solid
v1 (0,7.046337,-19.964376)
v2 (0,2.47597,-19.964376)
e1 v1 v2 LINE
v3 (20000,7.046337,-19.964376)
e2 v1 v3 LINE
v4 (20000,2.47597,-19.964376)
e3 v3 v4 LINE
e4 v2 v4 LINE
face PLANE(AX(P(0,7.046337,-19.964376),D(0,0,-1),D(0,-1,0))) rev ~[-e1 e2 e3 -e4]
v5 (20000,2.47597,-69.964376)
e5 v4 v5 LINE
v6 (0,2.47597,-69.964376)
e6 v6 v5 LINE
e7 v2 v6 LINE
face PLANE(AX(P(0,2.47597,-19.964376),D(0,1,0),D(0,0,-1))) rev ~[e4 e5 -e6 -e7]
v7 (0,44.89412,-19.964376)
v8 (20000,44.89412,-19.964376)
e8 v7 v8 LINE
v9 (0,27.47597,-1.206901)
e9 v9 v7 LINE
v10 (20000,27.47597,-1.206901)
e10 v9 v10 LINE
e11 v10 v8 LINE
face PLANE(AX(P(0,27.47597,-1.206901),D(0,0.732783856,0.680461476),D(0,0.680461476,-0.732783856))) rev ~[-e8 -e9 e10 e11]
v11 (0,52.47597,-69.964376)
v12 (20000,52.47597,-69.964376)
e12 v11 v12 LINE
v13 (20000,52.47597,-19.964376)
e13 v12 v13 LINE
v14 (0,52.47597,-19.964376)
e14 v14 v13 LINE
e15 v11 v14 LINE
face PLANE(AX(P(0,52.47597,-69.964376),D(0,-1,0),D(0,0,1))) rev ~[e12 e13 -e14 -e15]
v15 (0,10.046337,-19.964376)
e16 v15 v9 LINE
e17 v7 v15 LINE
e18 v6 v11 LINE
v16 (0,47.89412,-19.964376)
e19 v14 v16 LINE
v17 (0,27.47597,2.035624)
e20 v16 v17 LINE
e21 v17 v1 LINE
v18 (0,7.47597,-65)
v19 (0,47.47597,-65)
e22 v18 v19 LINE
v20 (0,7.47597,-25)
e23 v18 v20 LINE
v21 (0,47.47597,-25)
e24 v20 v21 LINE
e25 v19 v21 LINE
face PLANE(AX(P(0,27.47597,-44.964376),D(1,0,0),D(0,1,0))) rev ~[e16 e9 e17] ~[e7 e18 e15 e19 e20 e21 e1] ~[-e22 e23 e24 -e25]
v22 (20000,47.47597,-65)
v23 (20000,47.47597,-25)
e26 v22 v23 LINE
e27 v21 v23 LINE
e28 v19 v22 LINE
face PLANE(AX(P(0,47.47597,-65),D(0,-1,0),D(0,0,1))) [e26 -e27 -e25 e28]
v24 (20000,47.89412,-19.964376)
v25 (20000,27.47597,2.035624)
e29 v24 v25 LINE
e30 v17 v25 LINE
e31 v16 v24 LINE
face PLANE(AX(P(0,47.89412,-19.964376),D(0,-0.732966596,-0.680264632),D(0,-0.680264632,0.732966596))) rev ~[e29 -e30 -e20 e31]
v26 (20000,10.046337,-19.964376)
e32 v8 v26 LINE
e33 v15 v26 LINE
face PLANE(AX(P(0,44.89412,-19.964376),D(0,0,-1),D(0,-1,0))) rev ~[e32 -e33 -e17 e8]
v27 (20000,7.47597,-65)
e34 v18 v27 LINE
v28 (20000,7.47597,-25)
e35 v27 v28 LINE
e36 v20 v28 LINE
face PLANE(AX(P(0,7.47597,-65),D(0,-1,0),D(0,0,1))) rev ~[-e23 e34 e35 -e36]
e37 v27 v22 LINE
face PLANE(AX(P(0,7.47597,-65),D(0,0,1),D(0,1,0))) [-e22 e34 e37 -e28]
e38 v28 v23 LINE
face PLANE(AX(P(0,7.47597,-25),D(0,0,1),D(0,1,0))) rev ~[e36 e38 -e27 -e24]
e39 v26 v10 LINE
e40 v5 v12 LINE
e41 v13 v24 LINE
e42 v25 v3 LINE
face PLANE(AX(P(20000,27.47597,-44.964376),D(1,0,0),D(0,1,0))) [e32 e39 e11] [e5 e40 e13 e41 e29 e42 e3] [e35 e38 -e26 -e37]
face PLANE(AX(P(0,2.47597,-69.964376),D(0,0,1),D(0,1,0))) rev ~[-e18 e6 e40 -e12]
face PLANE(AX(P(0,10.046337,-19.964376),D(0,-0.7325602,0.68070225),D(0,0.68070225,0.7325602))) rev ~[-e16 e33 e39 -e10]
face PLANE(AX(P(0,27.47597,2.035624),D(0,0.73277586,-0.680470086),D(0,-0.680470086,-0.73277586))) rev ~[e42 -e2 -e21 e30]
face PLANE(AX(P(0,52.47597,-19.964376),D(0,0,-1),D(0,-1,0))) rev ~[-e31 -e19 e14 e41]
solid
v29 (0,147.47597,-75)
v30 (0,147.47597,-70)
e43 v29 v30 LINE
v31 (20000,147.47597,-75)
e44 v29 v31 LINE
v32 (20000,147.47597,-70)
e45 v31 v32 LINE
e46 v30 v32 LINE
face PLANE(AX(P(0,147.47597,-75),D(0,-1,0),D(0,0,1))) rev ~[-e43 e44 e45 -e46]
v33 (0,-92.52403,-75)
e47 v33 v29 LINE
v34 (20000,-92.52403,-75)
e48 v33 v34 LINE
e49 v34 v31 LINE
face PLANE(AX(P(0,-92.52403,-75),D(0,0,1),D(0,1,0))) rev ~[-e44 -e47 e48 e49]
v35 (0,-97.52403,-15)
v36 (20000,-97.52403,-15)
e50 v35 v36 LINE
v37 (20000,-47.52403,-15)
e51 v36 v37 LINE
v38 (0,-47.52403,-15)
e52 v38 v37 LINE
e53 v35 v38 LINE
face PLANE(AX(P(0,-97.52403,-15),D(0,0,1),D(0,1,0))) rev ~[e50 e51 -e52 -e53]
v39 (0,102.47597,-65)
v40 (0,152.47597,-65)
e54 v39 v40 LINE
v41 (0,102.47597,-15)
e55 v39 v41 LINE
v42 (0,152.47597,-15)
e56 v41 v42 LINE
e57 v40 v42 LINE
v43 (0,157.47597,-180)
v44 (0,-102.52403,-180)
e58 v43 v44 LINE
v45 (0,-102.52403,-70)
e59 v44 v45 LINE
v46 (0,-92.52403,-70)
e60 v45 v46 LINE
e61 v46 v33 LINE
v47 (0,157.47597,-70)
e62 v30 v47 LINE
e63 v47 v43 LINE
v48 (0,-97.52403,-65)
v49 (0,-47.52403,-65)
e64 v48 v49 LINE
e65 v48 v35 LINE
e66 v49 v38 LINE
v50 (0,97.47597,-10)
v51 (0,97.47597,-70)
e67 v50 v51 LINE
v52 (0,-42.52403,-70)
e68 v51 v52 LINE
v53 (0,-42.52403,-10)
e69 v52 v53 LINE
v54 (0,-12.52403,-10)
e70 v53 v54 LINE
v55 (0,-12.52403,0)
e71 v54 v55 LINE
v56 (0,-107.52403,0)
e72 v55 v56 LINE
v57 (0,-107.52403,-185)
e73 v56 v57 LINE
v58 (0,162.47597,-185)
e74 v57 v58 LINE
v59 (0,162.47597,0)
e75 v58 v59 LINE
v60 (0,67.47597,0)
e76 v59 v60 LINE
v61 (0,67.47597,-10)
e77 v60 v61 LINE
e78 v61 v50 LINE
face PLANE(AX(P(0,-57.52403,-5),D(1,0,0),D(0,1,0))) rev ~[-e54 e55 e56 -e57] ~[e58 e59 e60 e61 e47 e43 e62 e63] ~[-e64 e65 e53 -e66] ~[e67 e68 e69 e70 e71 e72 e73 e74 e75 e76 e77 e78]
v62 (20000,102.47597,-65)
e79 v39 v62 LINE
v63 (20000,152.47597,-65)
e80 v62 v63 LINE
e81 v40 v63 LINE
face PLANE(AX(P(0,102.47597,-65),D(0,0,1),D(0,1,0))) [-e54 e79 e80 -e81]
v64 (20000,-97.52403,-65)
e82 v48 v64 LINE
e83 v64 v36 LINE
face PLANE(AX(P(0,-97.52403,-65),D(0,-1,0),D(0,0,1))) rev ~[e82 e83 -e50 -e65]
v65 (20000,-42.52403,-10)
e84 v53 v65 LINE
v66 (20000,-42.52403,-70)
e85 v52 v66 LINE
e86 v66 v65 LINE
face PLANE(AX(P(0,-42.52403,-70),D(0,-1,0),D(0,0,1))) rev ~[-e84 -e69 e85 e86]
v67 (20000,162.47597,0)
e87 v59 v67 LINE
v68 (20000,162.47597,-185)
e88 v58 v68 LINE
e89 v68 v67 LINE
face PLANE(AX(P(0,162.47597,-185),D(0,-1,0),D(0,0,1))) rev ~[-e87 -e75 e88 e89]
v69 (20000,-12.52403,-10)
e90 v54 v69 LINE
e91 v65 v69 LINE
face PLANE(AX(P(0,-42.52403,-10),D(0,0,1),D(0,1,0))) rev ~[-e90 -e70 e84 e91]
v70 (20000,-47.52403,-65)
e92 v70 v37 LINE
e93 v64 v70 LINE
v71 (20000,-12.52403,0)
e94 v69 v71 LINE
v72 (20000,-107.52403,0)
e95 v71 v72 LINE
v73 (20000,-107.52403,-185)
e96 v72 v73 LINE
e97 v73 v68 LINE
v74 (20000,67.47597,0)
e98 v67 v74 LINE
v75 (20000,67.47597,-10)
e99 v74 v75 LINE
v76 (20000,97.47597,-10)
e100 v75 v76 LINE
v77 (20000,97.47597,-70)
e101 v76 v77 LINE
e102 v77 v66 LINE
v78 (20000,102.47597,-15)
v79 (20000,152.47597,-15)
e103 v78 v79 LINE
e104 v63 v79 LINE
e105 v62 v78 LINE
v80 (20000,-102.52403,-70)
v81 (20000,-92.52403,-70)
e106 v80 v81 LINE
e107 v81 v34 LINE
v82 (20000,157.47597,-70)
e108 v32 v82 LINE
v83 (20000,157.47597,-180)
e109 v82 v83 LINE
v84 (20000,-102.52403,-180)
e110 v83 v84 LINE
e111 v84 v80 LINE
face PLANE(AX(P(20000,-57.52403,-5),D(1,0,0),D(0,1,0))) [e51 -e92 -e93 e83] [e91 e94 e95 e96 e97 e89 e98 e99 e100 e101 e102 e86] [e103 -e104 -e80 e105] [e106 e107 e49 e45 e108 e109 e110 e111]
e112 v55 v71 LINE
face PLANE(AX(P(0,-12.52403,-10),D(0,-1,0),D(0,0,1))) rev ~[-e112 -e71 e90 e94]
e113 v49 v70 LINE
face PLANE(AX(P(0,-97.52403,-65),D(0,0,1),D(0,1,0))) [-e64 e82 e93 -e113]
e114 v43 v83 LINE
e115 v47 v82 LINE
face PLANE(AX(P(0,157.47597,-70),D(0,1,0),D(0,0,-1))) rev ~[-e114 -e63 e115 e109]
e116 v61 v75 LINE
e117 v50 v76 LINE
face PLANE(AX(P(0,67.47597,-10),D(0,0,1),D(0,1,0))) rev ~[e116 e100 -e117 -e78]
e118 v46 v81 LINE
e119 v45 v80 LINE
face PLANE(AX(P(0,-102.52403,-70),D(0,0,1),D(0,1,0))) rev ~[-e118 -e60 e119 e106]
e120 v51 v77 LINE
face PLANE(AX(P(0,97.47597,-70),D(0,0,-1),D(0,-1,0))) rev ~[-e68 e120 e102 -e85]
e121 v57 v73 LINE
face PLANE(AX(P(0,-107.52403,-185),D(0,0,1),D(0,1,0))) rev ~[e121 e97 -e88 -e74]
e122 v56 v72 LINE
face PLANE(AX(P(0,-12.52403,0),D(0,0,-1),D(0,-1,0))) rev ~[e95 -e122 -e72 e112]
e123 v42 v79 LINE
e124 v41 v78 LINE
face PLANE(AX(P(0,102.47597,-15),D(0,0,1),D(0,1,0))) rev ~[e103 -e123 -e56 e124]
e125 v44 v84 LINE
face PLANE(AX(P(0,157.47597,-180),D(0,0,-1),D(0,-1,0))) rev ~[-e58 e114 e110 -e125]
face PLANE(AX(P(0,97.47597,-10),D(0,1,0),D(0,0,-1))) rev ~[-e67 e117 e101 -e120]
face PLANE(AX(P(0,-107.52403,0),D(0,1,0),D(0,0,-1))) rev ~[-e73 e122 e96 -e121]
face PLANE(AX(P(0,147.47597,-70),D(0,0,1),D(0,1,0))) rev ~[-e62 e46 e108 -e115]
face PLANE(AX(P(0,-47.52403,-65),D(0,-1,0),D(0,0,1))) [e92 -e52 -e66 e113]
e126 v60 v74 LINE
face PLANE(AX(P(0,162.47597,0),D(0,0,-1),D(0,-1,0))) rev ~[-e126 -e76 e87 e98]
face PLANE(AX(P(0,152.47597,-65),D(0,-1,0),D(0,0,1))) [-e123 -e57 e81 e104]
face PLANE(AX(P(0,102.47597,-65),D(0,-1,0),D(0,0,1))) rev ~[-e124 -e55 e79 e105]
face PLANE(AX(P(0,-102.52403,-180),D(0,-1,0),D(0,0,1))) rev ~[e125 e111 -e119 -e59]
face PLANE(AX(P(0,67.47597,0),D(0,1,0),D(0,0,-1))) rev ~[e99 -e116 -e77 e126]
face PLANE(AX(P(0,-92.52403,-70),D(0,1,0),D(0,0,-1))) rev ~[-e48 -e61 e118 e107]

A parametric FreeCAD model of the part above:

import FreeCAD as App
import Part
import Sketcher

V = App.Vector
Q = App.Units.Quantity

doc = App.newDocument("Part")
body = doc.addObject("PartDesign::Body", "Body")
body.AllowCompound = True

sketch1 = body.newObject("Sketcher::SketchObject", "Sketch")
sketch1.AttachmentSupport = (doc.getObject("YZ_Plane"), [""])
sketch1.MapMode = "FlatFace"
sketch1.addGeometry(Part.LineSegment(V(-12.52403, 0, 0), V(-107.52403, 0, 0)), False)
sketch1.addGeometry(Part.LineSegment(V(-107.52403, 0, 0), V(-107.52403, -185, 0)), False)
sketch1.addGeometry(Part.LineSegment(V(-107.52403, -185, 0), V(162.47597, -185, 0)), False)
sketch1.addGeometry(Part.LineSegment(V(162.47597, -185, 0), V(162.47597, 0, 0)), False)
sketch1.addGeometry(Part.LineSegment(V(162.47597, 0, 0), V(67.47597, 0, 0)), False)
sketch1.addGeometry(Part.LineSegment(V(67.47597, 0, 0), V(67.47597, -10, 0)), False)
sketch1.addGeometry(Part.LineSegment(V(67.47597, -10, 0), V(97.47597, -10, 0)), False)
sketch1.addGeometry(Part.LineSegment(V(97.47597, -10, 0), V(97.47597, -70, 0)), False)
sketch1.addGeometry(Part.LineSegment(V(97.47597, -70, 0), V(-42.52403, -70, 0)), False)
sketch1.addGeometry(Part.LineSegment(V(-42.52403, -70, 0), V(-42.52403, -10, 0)), False)
sketch1.addGeometry(Part.LineSegment(V(-42.52403, -10, 0), V(-12.52403, -10, 0)), False)
sketch1.addGeometry(Part.LineSegment(V(-12.52403, -10, 0), V(-12.52403, 0, 0)), False)
sketch1.addGeometry(Part.LineSegment(V(157.47597, -70, 0), V(157.47597, -180, 0)), False)
sketch1.addGeometry(Part.LineSegment(V(157.47597, -180, 0), V(-102.52403, -180, 0)), False)
sketch1.addGeometry(Part.LineSegment(V(-102.52403, -180, 0), V(-102.52403, -70, 0)), False)
sketch1.addGeometry(Part.LineSegment(V(-102.52403, -70, 0), V(-92.52403, -70, 0)), False)
sketch1.addGeometry(Part.LineSegment(V(-92.52403, -70, 0), V(-92.52403, -75, 0)), False)
sketch1.addGeometry(Part.LineSegment(V(-92.52403, -75, 0), V(147.47597, -75, 0)), False)
sketch1.addGeometry(Part.LineSegment(V(147.47597, -75, 0), V(147.47597, -70, 0)), False)
sketch1.addGeometry(Part.LineSegment(V(147.47597, -70, 0), V(157.47597, -70, 0)), False)
sketch1.addGeometry(Part.LineSegment(V(-47.52403, -65, 0), V(-97.52403, -65, 0)), False)
sketch1.addGeometry(Part.LineSegment(V(-97.52403, -65, 0), V(-97.52403, -15, 0)), False)
sketch1.addGeometry(Part.LineSegment(V(-97.52403, -15, 0), V(-47.52403, -15, 0)), False)
sketch1.addGeometry(Part.LineSegment(V(-47.52403, -15, 0), V(-47.52403, -65, 0)), False)
sketch1.addGeometry(Part.LineSegment(V(152.47597, -65, 0), V(102.47597, -65, 0)), False)
sketch1.addGeometry(Part.LineSegment(V(102.47597, -65, 0), V(102.47597, -15, 0)), False)
sketch1.addGeometry(Part.LineSegment(V(102.47597, -15, 0), V(152.47597, -15, 0)), False)
sketch1.addGeometry(Part.LineSegment(V(152.47597, -15, 0), V(152.47597, -65, 0)), False)
sketch1.addGeometry(Part.LineSegment(V(2.47597, -19.964376, 0), V(2.47597, -69.964376, 0)), False)
sketch1.addGeometry(Part.LineSegment(V(2.47597, -69.964376, 0), V(52.47597, -69.964376, 0)), False)
sketch1.addGeometry(Part.LineSegment(V(52.47597, -69.964376, 0), V(52.47597, -19.964376, 0)), False)
sketch1.addGeometry(Part.LineSegment(V(52.47597, -19.964376, 0), V(47.89412, -19.964376, 0)), False)
sketch1.addGeometry(Part.LineSegment(V(47.89412, -19.964376, 0), V(27.47597, 2.035624, 0)), False)
sketch1.addGeometry(Part.LineSegment(V(27.47597, 2.035624, 0), V(7.046337, -19.964376, 0)), False)
sketch1.addGeometry(Part.LineSegment(V(7.046337, -19.964376, 0), V(2.47597, -19.964376, 0)), False)
sketch1.addGeometry(Part.LineSegment(V(44.89412, -19.964376, 0), V(10.046337, -19.964376, 0)), False)
sketch1.addGeometry(Part.LineSegment(V(10.046337, -19.964376, 0), V(27.47597, -1.206901, 0)), False)
sketch1.addGeometry(Part.LineSegment(V(27.47597, -1.206901, 0), V(44.89412, -19.964376, 0)), False)
sketch1.addGeometry(Part.LineSegment(V(47.47597, -65, 0), V(7.47597, -65, 0)), False)
sketch1.addGeometry(Part.LineSegment(V(7.47597, -65, 0), V(7.47597, -25, 0)), False)
sketch1.addGeometry(Part.LineSegment(V(7.47597, -25, 0), V(47.47597, -25, 0)), False)
sketch1.addGeometry(Part.LineSegment(V(47.47597, -25, 0), V(47.47597, -65, 0)), False)
sketch1.addConstraint(Sketcher.Constraint("Coincident", 0, 2, 1, 1))
sketch1.addConstraint(Sketcher.Constraint("Coincident", 1, 2, 2, 1))
sketch1.addConstraint(Sketcher.Constraint("Coincident", 2, 2, 3, 1))
sketch1.addConstraint(Sketcher.Constraint("Coincident", 3, 2, 4, 1))
sketch1.addConstraint(Sketcher.Constraint("Coincident", 4, 2, 5, 1))
sketch1.addConstraint(Sketcher.Constraint("Coincident", 5, 2, 6, 1))
sketch1.addConstraint(Sketcher.Constraint("Coincident", 6, 2, 7, 1))
sketch1.addConstraint(Sketcher.Constraint("Coincident", 7, 2, 8, 1))
sketch1.addConstraint(Sketcher.Constraint("Coincident", 8, 2, 9, 1))
sketch1.addConstraint(Sketcher.Constraint("Coincident", 9, 2, 10, 1))
sketch1.addConstraint(Sketcher.Constraint("Coincident", 10, 2, 11, 1))
sketch1.addConstraint(Sketcher.Constraint("Coincident", 11, 2, 0, 1))
sketch1.addConstraint(Sketcher.Constraint("Coincident", 12, 2, 13, 1))
sketch1.addConstraint(Sketcher.Constraint("Coincident", 13, 2, 14, 1))
sketch1.addConstraint(Sketcher.Constraint("Coincident", 14, 2, 15, 1))
sketch1.addConstraint(Sketcher.Constraint("Coincident", 15, 2, 16, 1))
sketch1.addConstraint(Sketcher.Constraint("Coincident", 16, 2, 17, 1))
sketch1.addConstraint(Sketcher.Constraint("Coincident", 17, 2, 18, 1))
sketch1.addConstraint(Sketcher.Constraint("Coincident", 18, 2, 19, 1))
sketch1.addConstraint(Sketcher.Constraint("Coincident", 19, 2, 12, 1))
sketch1.addConstraint(Sketcher.Constraint("Coincident", 20, 2, 21, 1))
sketch1.addConstraint(Sketcher.Constraint("Coincident", 21, 2, 22, 1))
sketch1.addConstraint(Sketcher.Constraint("Coincident", 22, 2, 23, 1))
sketch1.addConstraint(Sketcher.Constraint("Coincident", 23, 2, 20, 1))
sketch1.addConstraint(Sketcher.Constraint("Coincident", 24, 2, 25, 1))
sketch1.addConstraint(Sketcher.Constraint("Coincident", 25, 2, 26, 1))
sketch1.addConstraint(Sketcher.Constraint("Coincident", 26, 2, 27, 1))
sketch1.addConstraint(Sketcher.Constraint("Coincident", 27, 2, 24, 1))
sketch1.addConstraint(Sketcher.Constraint("Coincident", 28, 2, 29, 1))
sketch1.addConstraint(Sketcher.Constraint("Coincident", 29, 2, 30, 1))
sketch1.addConstraint(Sketcher.Constraint("Coincident", 30, 2, 31, 1))
sketch1.addConstraint(Sketcher.Constraint("Coincident", 31, 2, 32, 1))
sketch1.addConstraint(Sketcher.Constraint("Coincident", 32, 2, 33, 1))
sketch1.addConstraint(Sketcher.Constraint("Coincident", 33, 2, 34, 1))
sketch1.addConstraint(Sketcher.Constraint("Coincident", 34, 2, 28, 1))
sketch1.addConstraint(Sketcher.Constraint("Coincident", 35, 2, 36, 1))
sketch1.addConstraint(Sketcher.Constraint("Coincident", 36, 2, 37, 1))
sketch1.addConstraint(Sketcher.Constraint("Coincident", 37, 2, 35, 1))
sketch1.addConstraint(Sketcher.Constraint("Coincident", 38, 2, 39, 1))
sketch1.addConstraint(Sketcher.Constraint("Coincident", 39, 2, 40, 1))
sketch1.addConstraint(Sketcher.Constraint("Coincident", 40, 2, 41, 1))
sketch1.addConstraint(Sketcher.Constraint("Coincident", 41, 2, 38, 1))
sketch1.addConstraint(Sketcher.Constraint("Horizontal", 0))
sketch1.addConstraint(Sketcher.Constraint("Vertical", 1))
sketch1.addConstraint(Sketcher.Constraint("Horizontal", 2))
sketch1.addConstraint(Sketcher.Constraint("Vertical", 3))
sketch1.addConstraint(Sketcher.Constraint("Horizontal", 4))
sketch1.addConstraint(Sketcher.Constraint("Vertical", 5))
sketch1.addConstraint(Sketcher.Constraint("Horizontal", 6))
sketch1.addConstraint(Sketcher.Constraint("Vertical", 7))
sketch1.addConstraint(Sketcher.Constraint("Horizontal", 8))
sketch1.addConstraint(Sketcher.Constraint("Vertical", 9))
sketch1.addConstraint(Sketcher.Constraint("Horizontal", 10))
sketch1.addConstraint(Sketcher.Constraint("Vertical", 11))
sketch1.addConstraint(Sketcher.Constraint("Vertical", 12))
sketch1.addConstraint(Sketcher.Constraint("Horizontal", 13))
sketch1.addConstraint(Sketcher.Constraint("Vertical", 14))
sketch1.addConstraint(Sketcher.Constraint("Horizontal", 15))
sketch1.addConstraint(Sketcher.Constraint("Vertical", 16))
sketch1.addConstraint(Sketcher.Constraint("Horizontal", 17))
sketch1.addConstraint(Sketcher.Constraint("Vertical", 18))
sketch1.addConstraint(Sketcher.Constraint("Horizontal", 19))
sketch1.addConstraint(Sketcher.Constraint("Horizontal", 20))
sketch1.addConstraint(Sketcher.Constraint("Vertical", 21))
sketch1.addConstraint(Sketcher.Constraint("Horizontal", 22))
sketch1.addConstraint(Sketcher.Constraint("Vertical", 23))
sketch1.addConstraint(Sketcher.Constraint("Horizontal", 24))
sketch1.addConstraint(Sketcher.Constraint("Vertical", 25))
sketch1.addConstraint(Sketcher.Constraint("Horizontal", 26))
sketch1.addConstraint(Sketcher.Constraint("Vertical", 27))
sketch1.addConstraint(Sketcher.Constraint("Vertical", 28))
sketch1.addConstraint(Sketcher.Constraint("Horizontal", 29))
sketch1.addConstraint(Sketcher.Constraint("Vertical", 30))
sketch1.addConstraint(Sketcher.Constraint("Horizontal", 31))
sketch1.addConstraint(Sketcher.Constraint("Horizontal", 34))
sketch1.addConstraint(Sketcher.Constraint("Horizontal", 35))
sketch1.addConstraint(Sketcher.Constraint("Horizontal", 38))
sketch1.addConstraint(Sketcher.Constraint("Vertical", 39))
sketch1.addConstraint(Sketcher.Constraint("Horizontal", 40))
sketch1.addConstraint(Sketcher.Constraint("Vertical", 41))
sketch1.addConstraint(Sketcher.Constraint("PointOnObject", 0, 2, -1))
sketch1.addConstraint(Sketcher.Constraint("PointOnObject", 3, 2, -1))
sketch1.addConstraint(Sketcher.Constraint("Horizontal", 6, 2, 9, 2))
sketch1.addConstraint(Sketcher.Constraint("Horizontal", 8, 2, 14, 2))
sketch1.addConstraint(Sketcher.Constraint("Horizontal", 15, 2, 18, 2))
sketch1.addConstraint(Sketcher.Constraint("Horizontal", 23, 2, 24, 2))
sketch1.addConstraint(Sketcher.Constraint("Horizontal", 22, 2, 25, 2))
sketch1.addConstraint(Sketcher.Constraint("Horizontal", 31, 2, 33, 2))
sketch1.addConstraint(Sketcher.Constraint("Horizontal", 34, 2, 35, 2))
sketch1.addConstraint(Sketcher.Constraint("Horizontal", 27, 2, 38, 2))
sketch1.addConstraint(Sketcher.Constraint("Vertical", 32, 2, 36, 2))
sketch1.addConstraint(Sketcher.Constraint("Equal", 0, 4))
sketch1.addConstraint(Sketcher.Constraint("Equal", 6, 10))
sketch1.addConstraint(Sketcher.Constraint("Equal", 15, 19))
sketch1.addConstraint(Sketcher.Constraint("Equal", 22, 24))
sketch1.addConstraint(Sketcher.Constraint("Equal", 26, 29))
sketch1.addConstraint(Sketcher.Constraint("Equal", 19, 5))
sketch1.addConstraint(Sketcher.Constraint("Equal", 29, 21))
sketch1.addConstraint(Sketcher.Constraint("Equal", 27, 28))
sketch1.addConstraint(Sketcher.Constraint("Equal", 40, 39))
sketch1.addConstraint(Sketcher.Constraint("DistanceX", 0, 2, 0, 1, Q("95 mm")))
sketch1.addConstraint(Sketcher.Constraint("DistanceX", 2, 1, 2, 2, Q("270 mm")))
sketch1.addConstraint(Sketcher.Constraint("DistanceX", 6, 1, 6, 2, Q("30 mm")))
sketch1.addConstraint(Sketcher.Constraint("DistanceX", 13, 2, 13, 1, Q("260 mm")))
sketch1.addConstraint(Sketcher.Constraint("DistanceX", 15, 1, 15, 2, Q("10 mm")))
sketch1.addConstraint(Sketcher.Constraint("DistanceX", 20, 2, 20, 1, Q("50 mm")))
sketch1.addConstraint(Sketcher.Constraint("DistanceX", 38, 2, 38, 1, Q("40 mm")))
sketch1.addConstraint(Sketcher.Constraint("DistanceY", 1, 2, 1, 1, Q("185 mm")))
sketch1.addConstraint(Sketcher.Constraint("DistanceY", 7, 2, 7, 1, Q("60 mm")))
sketch1.addConstraint(Sketcher.Constraint("DistanceY", 12, 2, 12, 1, Q("110 mm")))
sketch1.addConstraint(Sketcher.Constraint("DistanceY", 16, 2, 16, 1, Q("5 mm")))
sketch1.addConstraint(Sketcher.Constraint("DistanceY", 20, 2, -1, 1, Q("65 mm")))
sketch1.addConstraint(Sketcher.Constraint("DistanceX", 12, 2, 2, 2, Q("5 mm")))
sketch1.addConstraint(Sketcher.Constraint("DistanceX", 14, 2, 20, 2, Q("5 mm")))
sketch1.addConstraint(Sketcher.Constraint("DistanceX", 7, 2, 24, 2, Q("5 mm")))
sketch1.addConstraint(Sketcher.Constraint("DistanceX", 8, 2, 28, 2, Q("45 mm")))
sketch1.addConstraint(Sketcher.Constraint("DistanceY", 31, 2, 32, 2, Q("22 mm")))
sketch1.addConstraint(Sketcher.Constraint("DistanceX", 32, 2, 30, 2, Q("25 mm")))
sketch1.addConstraint(Sketcher.Constraint("DistanceX", 33, 2, 35, 2, Q("3 mm")))
sketch1.addConstraint(Sketcher.Constraint("DistanceX", 37, 2, 31, 2, Q("3 mm")))
sketch1.addConstraint(Sketcher.Constraint("DistanceX", 28, 2, 38, 2, Q("5 mm")))
sketch1.addConstraint(Sketcher.Constraint("DistanceX", 31, 2, 31, 1, Q("4.58185 mm")))
sketch1.addConstraint(Sketcher.Constraint("DistanceY", 36, 2, -1, 1, Q("1.206901 mm")))
sketch1.addConstraint(Sketcher.Constraint("Distance", 36, Q("25.60537 mm")))
sketch1.addConstraint(Sketcher.Constraint("DistanceX", 34, 2, 34, 1, Q("4.570367 mm")))
sketch1.addConstraint(Sketcher.Constraint("DistanceX", 0, 2, -1, 1, Q("107.52403 mm")))
pad1 = body.newObject("PartDesign::Pad", "Pad")
pad1.Profile = sketch1
pad1.Length = 20000

doc.recompute()
